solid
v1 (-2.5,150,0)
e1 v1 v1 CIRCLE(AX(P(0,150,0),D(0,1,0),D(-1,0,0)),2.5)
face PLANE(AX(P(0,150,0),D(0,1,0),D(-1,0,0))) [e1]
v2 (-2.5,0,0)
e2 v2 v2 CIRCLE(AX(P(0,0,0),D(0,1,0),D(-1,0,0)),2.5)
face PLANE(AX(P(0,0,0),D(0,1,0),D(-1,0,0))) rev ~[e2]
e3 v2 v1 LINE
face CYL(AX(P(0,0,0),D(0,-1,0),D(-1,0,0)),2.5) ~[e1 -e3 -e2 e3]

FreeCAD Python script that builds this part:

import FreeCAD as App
import Part
import Sketcher

V = App.Vector
Q = App.Units.Quantity

doc = App.newDocument("Part")
body = doc.addObject("PartDesign::Body", "Body")

# Sketch on XZ plane
sketch1 = body.newObject("Sketcher::SketchObject", "Sketch")
sketch1.AttachmentSupport = (doc.getObject("XZ_Plane"), [""])
sketch1.MapMode = "FlatFace"
sketch1.addGeometry(Part.Circle(V(0, 0, 0), V(0, 0, 1), 2.5), False)
sketch1.addConstraint([
    Sketcher.Constraint("Coincident", 0, 3, -1, 1),
    Sketcher.Constraint("Diameter", 0, Q("5 mm")),
])
pad1 = body.newObject("PartDesign::Pad", "Pad")
pad1.Profile = sketch1
pad1.Length = 150
pad1.Reversed = True

doc.recompute()
